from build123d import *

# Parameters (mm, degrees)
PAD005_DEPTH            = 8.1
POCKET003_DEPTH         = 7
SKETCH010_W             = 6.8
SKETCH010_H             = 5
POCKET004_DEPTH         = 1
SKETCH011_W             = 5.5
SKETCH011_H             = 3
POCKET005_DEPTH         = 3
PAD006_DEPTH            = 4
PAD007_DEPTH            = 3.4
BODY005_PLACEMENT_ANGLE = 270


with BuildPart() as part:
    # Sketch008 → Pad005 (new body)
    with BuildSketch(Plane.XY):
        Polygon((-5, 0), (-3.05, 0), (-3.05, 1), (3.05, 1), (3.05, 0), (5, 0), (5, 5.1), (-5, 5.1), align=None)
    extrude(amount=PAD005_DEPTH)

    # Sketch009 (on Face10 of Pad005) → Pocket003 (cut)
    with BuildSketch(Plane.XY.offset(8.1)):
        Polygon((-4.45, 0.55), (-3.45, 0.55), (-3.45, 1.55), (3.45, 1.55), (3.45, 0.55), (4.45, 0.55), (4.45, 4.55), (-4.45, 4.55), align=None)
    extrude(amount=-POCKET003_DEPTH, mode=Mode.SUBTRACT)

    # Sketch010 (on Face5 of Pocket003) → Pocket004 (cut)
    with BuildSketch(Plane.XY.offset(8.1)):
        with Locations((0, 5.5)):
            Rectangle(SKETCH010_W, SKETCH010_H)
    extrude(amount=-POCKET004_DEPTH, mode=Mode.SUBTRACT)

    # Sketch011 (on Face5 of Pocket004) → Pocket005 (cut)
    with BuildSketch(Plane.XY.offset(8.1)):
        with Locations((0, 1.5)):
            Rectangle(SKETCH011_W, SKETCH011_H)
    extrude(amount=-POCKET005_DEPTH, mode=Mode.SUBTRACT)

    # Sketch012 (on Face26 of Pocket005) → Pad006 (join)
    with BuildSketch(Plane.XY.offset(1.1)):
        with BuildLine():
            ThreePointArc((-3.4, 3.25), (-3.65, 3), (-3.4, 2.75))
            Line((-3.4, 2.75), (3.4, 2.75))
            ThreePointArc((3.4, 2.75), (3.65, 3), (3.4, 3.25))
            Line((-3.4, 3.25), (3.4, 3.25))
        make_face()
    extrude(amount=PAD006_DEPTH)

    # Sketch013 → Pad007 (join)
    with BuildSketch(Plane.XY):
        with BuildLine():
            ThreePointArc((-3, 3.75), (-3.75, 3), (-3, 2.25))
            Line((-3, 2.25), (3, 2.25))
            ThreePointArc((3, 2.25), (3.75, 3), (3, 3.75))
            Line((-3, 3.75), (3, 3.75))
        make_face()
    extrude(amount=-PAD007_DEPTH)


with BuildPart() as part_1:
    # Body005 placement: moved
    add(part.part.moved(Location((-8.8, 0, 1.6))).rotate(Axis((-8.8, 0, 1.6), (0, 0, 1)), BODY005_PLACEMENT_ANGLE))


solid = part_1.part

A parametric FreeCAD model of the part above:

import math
import FreeCAD as App
import Part
import Sketcher
Q = App.Units.Quantity

doc = App.newDocument("Part")
body = doc.addObject("PartDesign::Body", "Body")

# Sketch on XY plane
sketch1 = body.newObject("Sketcher::SketchObject", "Sketch")
sketch1.AttachmentSupport = (doc.getObject("XY_Plane"), [""])
sketch1.MapMode = "FlatFace"
sketch1.addGeometry(Part.LineSegment(App.Vector(-5, 0, 0), App.Vector(-3, 0, 0)), False)
sketch1.addGeometry(Part.LineSegment(App.Vector(-3, 0, 0), App.Vector(-3, 1, 0)), False)
sketch1.addGeometry(Part.LineSegment(App.Vector(-3, 1, 0), App.Vector(3, 1, 0)), False)
sketch1.addGeometry(Part.LineSegment(App.Vector(3, 1, 0), App.Vector(3, 0, 0)), False)
sketch1.addGeometry(Part.LineSegment(App.Vector(3, 0, 0), App.Vector(5, 0, 0)), False)
sketch1.addGeometry(Part.LineSegment(App.Vector(5, 0, 0), App.Vector(5, 5.1, 0)), False)
sketch1.addGeometry(Part.LineSegment(App.Vector(5, 5.1, 0), App.Vector(-5, 5.1, 0)), False)
sketch1.addGeometry(Part.LineSegment(App.Vector(-5, 5.1, 0), App.Vector(-5, 0, 0)), False)
sketch1.addConstraint(Sketcher.Constraint("Coincident", 0, 2, 1, 1))
sketch1.addConstraint(Sketcher.Constraint("Coincident", 1, 2, 2, 1))
sketch1.addConstraint(Sketcher.Constraint("Coincident", 2, 2, 3, 1))
sketch1.addConstraint(Sketcher.Constraint("Coincident", 3, 2, 4, 1))
sketch1.addConstraint(Sketcher.Constraint("Coincident", 4, 2, 5, 1))
sketch1.addConstraint(Sketcher.Constraint("Coincident", 5, 2, 6, 1))
sketch1.addConstraint(Sketcher.Constraint("Coincident", 6, 2, 7, 1))
sketch1.addConstraint(Sketcher.Constraint("Coincident", 7, 2, 0, 1))
sketch1.addConstraint(Sketcher.Constraint("Horizontal", 0))
sketch1.addConstraint(Sketcher.Constraint("Vertical", 1))
sketch1.addConstraint(Sketcher.Constraint("Horizontal", 2))
sketch1.addConstraint(Sketcher.Constraint("Vertical", 3))
sketch1.addConstraint(Sketcher.Constraint("Horizontal", 4))
sketch1.addConstraint(Sketcher.Constraint("Vertical", 5))
sketch1.addConstraint(Sketcher.Constraint("Horizontal", 6))
sketch1.addConstraint(Sketcher.Constraint("Vertical", 7))
sketch1.addConstraint(Sketcher.Constraint("Symmetric", 0, 2, 3, 2, -1, 1))
sketch1.addConstraint(Sketcher.Constraint("Symmetric", 4, 2, 7, 2, -2))
sketch1.addConstraint(Sketcher.Constraint("DistanceX", 6, 2, 6, 1, Q("10 mm")))
sketch1.addConstraint(Sketcher.Constraint("DistanceY", 1, 1, 1, 2, Q("1 mm")))
sketch1.addConstraint(Sketcher.Constraint("DistanceX", 2, 1, 2, 2, Q("6.1 mm")))
sketch1.addConstraint(Sketcher.Constraint("DistanceY", 5, 1, 5, 2, Q("5.1 mm")))
pad1 = body.newObject("PartDesign::Pad", "Pad")
pad1.Profile = sketch1
pad1.Length = 8.1

# Sketch on XY plane
sketch2 = body.newObject("Sketcher::SketchObject", "Sketch001")
sketch2.AttachmentSupport = (doc.getObject("XY_Plane"), [""])
sketch2.MapMode = "FlatFace"
sketch2.AttachmentOffset = App.Placement(App.Vector(0, 0, 8.1), App.Rotation())
sketch2.addGeometry(Part.LineSegment(App.Vector(-4.5, 0.6, 0), App.Vector(-3.5, 0.6, 0)), False)
sketch2.addGeometry(Part.LineSegment(App.Vector(-3.5, 0.6, 0), App.Vector(-3.5, 1.6, 0)), False)
sketch2.addGeometry(Part.LineSegment(App.Vector(-3.5, 1.6, 0), App.Vector(3.5, 1.6, 0)), False)
sketch2.addGeometry(Part.LineSegment(App.Vector(3.5, 1.6, 0), App.Vector(3.5, 0.6, 0)), False)
sketch2.addGeometry(Part.LineSegment(App.Vector(3.5, 0.6, 0), App.Vector(4.5, 0.6, 0)), False)
sketch2.addGeometry(Part.LineSegment(App.Vector(4.5, 0.6, 0), App.Vector(4.5, 4.5, 0)), False)
sketch2.addGeometry(Part.LineSegment(App.Vector(4.5, 4.5, 0), App.Vector(-4.5, 4.5, 0)), False)
sketch2.addGeometry(Part.LineSegment(App.Vector(-4.5, 4.5, 0), App.Vector(-4.5, 0.6, 0)), False)
sketch2.addConstraint(Sketcher.Constraint("Coincident", 0, 2, 1, 1))
sketch2.addConstraint(Sketcher.Constraint("Coincident", 1, 2, 2, 1))
sketch2.addConstraint(Sketcher.Constraint("Coincident", 2, 2, 3, 1))
sketch2.addConstraint(Sketcher.Constraint("Coincident", 3, 2, 4, 1))
sketch2.addConstraint(Sketcher.Constraint("Coincident", 4, 2, 5, 1))
sketch2.addConstraint(Sketcher.Constraint("Coincident", 5, 2, 6, 1))
sketch2.addConstraint(Sketcher.Constraint("Coincident", 6, 2, 7, 1))
sketch2.addConstraint(Sketcher.Constraint("Coincident", 7, 2, 0, 1))
sketch2.addConstraint(Sketcher.Constraint("Horizontal", 0))
sketch2.addConstraint(Sketcher.Constraint("Vertical", 1))
sketch2.addConstraint(Sketcher.Constraint("Horizontal", 2))
sketch2.addConstraint(Sketcher.Constraint("Vertical", 3))
sketch2.addConstraint(Sketcher.Constraint("Horizontal", 4))
sketch2.addConstraint(Sketcher.Constraint("Vertical", 5))
sketch2.addConstraint(Sketcher.Constraint("Horizontal", 6))
sketch2.addConstraint(Sketcher.Constraint("Vertical", 7))
sketch2.addConstraint(Sketcher.Constraint("Symmetric", 0, 2, 3, 2, -2))
sketch2.addConstraint(Sketcher.Constraint("Equal", 0, 4))
sketch2.addConstraint(Sketcher.Constraint("Equal", 4, 1))
sketch2.addConstraint(Sketcher.Constraint("DistanceX", 0, 1, 0, 2, Q("1 mm")))
sketch2.addConstraint(Sketcher.Constraint("DistanceY", 5, 1, 5, 2, Q("4 mm")))
sketch2.addConstraint(Sketcher.Constraint("DistanceX", 2, 1, 2, 2, Q("6.9 mm")))
sketch2.addConstraint(Sketcher.Constraint("DistanceY", -1, 1, 0, 2, Q("0.55 mm")))
pocket1 = body.newObject("PartDesign::Pocket", "Pocket")
pocket1.Profile = sketch2
pocket1.Length = 7

# Sketch on XY plane
sketch3 = body.newObject("Sketcher::SketchObject", "Sketch002")
sketch3.AttachmentSupport = (doc.getObject("XY_Plane"), [""])
sketch3.MapMode = "FlatFace"
sketch3.AttachmentOffset = App.Placement(App.Vector(0, 0, 8.1), App.Rotation())
sketch3.addGeometry(Part.LineSegment(App.Vector(-3, 8, 0), App.Vector(-3, 3, 0)), False)
sketch3.addGeometry(Part.LineSegment(App.Vector(-3, 3, 0), App.Vector(3, 3, 0)), False)
sketch3.addGeometry(Part.LineSegment(App.Vector(3, 3, 0), App.Vector(3, 8, 0)), False)
sketch3.addGeometry(Part.LineSegment(App.Vector(3, 8, 0), App.Vector(-3, 8, 0)), False)
sketch3.addConstraint(Sketcher.Constraint("Coincident", 0, 2, 1, 1))
sketch3.addConstraint(Sketcher.Constraint("Coincident", 1, 2, 2, 1))
sketch3.addConstraint(Sketcher.Constraint("Coincident", 2, 2, 3, 1))
sketch3.addConstraint(Sketcher.Constraint("Coincident", 3, 2, 0, 1))
sketch3.addConstraint(Sketcher.Constraint("Vertical", 0))
sketch3.addConstraint(Sketcher.Constraint("Horizontal", 1))
sketch3.addConstraint(Sketcher.Constraint("Vertical", 2))
sketch3.addConstraint(Sketcher.Constraint("Horizontal", 3))
sketch3.addConstraint(Sketcher.Constraint("DistanceY", 0, 2, 0, 1, Q("5 mm")))
sketch3.addConstraint(Sketcher.Constraint("DistanceX", 1, 1, 1, 2, Q("6.8 mm")))
sketch3.addConstraint(Sketcher.Constraint("DistanceY", -1, 1, 0, 2, Q("3 mm")))
sketch3.addConstraint(Sketcher.Constraint("DistanceX", 0, 2, -1, 1, Q("3.4 mm")))
pocket2 = body.newObject("PartDesign::Pocket", "Pocket001")
pocket2.Profile = sketch3
pocket2.Length = 1

# Sketch on XY plane
sketch4 = body.newObject("Sketcher::SketchObject", "Sketch003")
sketch4.AttachmentSupport = (doc.getObject("XY_Plane"), [""])
sketch4.MapMode = "FlatFace"
sketch4.AttachmentOffset = App.Placement(App.Vector(0, 0, 8.1), App.Rotation())
sketch4.addGeometry(Part.LineSegment(App.Vector(-2.8, 3, 0), App.Vector(-2.8, 0, 0)), False)
sketch4.addGeometry(Part.LineSegment(App.Vector(-2.8, 0, 0), App.Vector(2.8, 0, 0)), False)
sketch4.addGeometry(Part.LineSegment(App.Vector(2.8, 0, 0), App.Vector(2.8, 3, 0)), False)
sketch4.addGeometry(Part.LineSegment(App.Vector(2.8, 3, 0), App.Vector(-2.8, 3, 0)), False)
sketch4.addConstraint(Sketcher.Constraint("Coincident", 0, 2, 1, 1))
sketch4.addConstraint(Sketcher.Constraint("Coincident", 1, 2, 2, 1))
sketch4.addConstraint(Sketcher.Constraint("Coincident", 2, 2, 3, 1))
sketch4.addConstraint(Sketcher.Constraint("Coincident", 3, 2, 0, 1))
sketch4.addConstraint(Sketcher.Constraint("Vertical", 0))
sketch4.addConstraint(Sketcher.Constraint("Horizontal", 1))
sketch4.addConstraint(Sketcher.Constraint("Vertical", 2))
sketch4.addConstraint(Sketcher.Constraint("Horizontal", 3))
sketch4.addConstraint(Sketcher.Constraint("Symmetric", 0, 2, 1, 2, -1, 1))
sketch4.addConstraint(Sketcher.Constraint("DistanceY", 0, 2, 0, 1, Q("3 mm")))
sketch4.addConstraint(Sketcher.Constraint("DistanceX", 1, 1, 1, 2, Q("5.5 mm")))
pocket3 = body.newObject("PartDesign::Pocket", "Pocket002")
pocket3.Profile = sketch4
pocket3.Length = 3

# Sketch on XY plane
sketch5 = body.newObject("Sketcher::SketchObject", "Sketch004")
sketch5.AttachmentSupport = (doc.getObject("XY_Plane"), [""])
sketch5.MapMode = "FlatFace"
sketch5.AttachmentOffset = App.Placement(App.Vector(0, 0, 1.1), App.Rotation())
sketch5.addGeometry(Part.ArcOfCircle(Part.Circle(App.Vector(-3.4, 3, 0), App.Vector(0, 0, 1), 0.25), math.radians(90), math.radians(270)), False)
sketch5.addGeometry(Part.LineSegment(App.Vector(-3.4, 2.75, 0), App.Vector(3.4, 2.75, 0)), False)
sketch5.addGeometry(Part.ArcOfCircle(Part.Circle(App.Vector(3.4, 3, 0), App.Vector(0, 0, 1), 0.25), math.radians(-90), math.radians(90)), False)
sketch5.addGeometry(Part.LineSegment(App.Vector(3.4, 3.25, 0), App.Vector(-3.4, 3.25, 0)), False)
sketch5.addConstraint(Sketcher.Constraint("Tangent", 0, 2, 1, 1))
sketch5.addConstraint(Sketcher.Constraint("Tangent", 1, 2, 2, 1))
sketch5.addConstraint(Sketcher.Constraint("Tangent", 2, 2, 3, 1))
sketch5.addConstraint(Sketcher.Constraint("Tangent", 3, 2, 0, 1))
sketch5.addConstraint(Sketcher.Constraint("Horizontal", 1))
sketch5.addConstraint(Sketcher.Constraint("Horizontal", 3))
sketch5.addConstraint(Sketcher.Constraint("Radius", 0, Q("0.25 mm")))
sketch5.addConstraint(Sketcher.Constraint("DistanceX", 1, 1, 1, 2, Q("6.8 mm")))
sketch5.addConstraint(Sketcher.Constraint("DistanceY", -1, 1, 0, 3, Q("3 mm")))
sketch5.addConstraint(Sketcher.Constraint("DistanceX", 0, 3, -1, 1, Q("3.4 mm")))
pad2 = body.newObject("PartDesign::Pad", "Pad001")
pad2.Profile = sketch5
pad2.Length = 4

# Sketch on XY plane
sketch6 = body.newObject("Sketcher::SketchObject", "Sketch005")
sketch6.AttachmentSupport = (doc.getObject("XY_Plane"), [""])
sketch6.MapMode = "FlatFace"
sketch6.addGeometry(Part.ArcOfCircle(Part.Circle(App.Vector(-3, 3, 0), App.Vector(0, 0, 1), 0.8), math.radians(90), math.radians(270)), False)
sketch6.addGeometry(Part.LineSegment(App.Vector(-3, 2.2, 0), App.Vector(3, 2.2, 0)), False)
sketch6.addGeometry(Part.ArcOfCircle(Part.Circle(App.Vector(3, 3, 0), App.Vector(0, 0, 1), 0.8), math.radians(-90), math.radians(90)), False)
sketch6.addGeometry(Part.LineSegment(App.Vector(3, 3.8, 0), App.Vector(-3, 3.8, 0)), False)
sketch6.addConstraint(Sketcher.Constraint("Tangent", 0, 2, 1, 1))
sketch6.addConstraint(Sketcher.Constraint("Tangent", 1, 2, 2, 1))
sketch6.addConstraint(Sketcher.Constraint("Tangent", 2, 2, 3, 1))
sketch6.addConstraint(Sketcher.Constraint("Tangent", 3, 2, 0, 1))
sketch6.addConstraint(Sketcher.Constraint("Horizontal", 1))
sketch6.addConstraint(Sketcher.Constraint("Horizontal", 3))
sketch6.addConstraint(Sketcher.Constraint("DistanceX", 1, 1, 1, 2, Q("6 mm")))
sketch6.addConstraint(Sketcher.Constraint("Radius", 0, Q("0.75 mm")))
sketch6.addConstraint(Sketcher.Constraint("DistanceX", 0, 3, -1, 1, Q("3 mm")))
sketch6.addConstraint(Sketcher.Constraint("DistanceY", -1, 1, 0, 3, Q("3 mm")))
pad3 = body.newObject("PartDesign::Pad", "Pad002")
pad3.Profile = sketch6
pad3.Length = 3.4
pad3.Reversed = True
body2 = doc.addObject("PartDesign::Body", "Body001")
doc.recompute()

body.Placement = App.Placement(App.Vector(-8.8, 0, 1.6), App.Rotation(App.Vector(0, 0, 1), 270))
boolean = body2.newObject("PartDesign::Boolean", "Boolean")
boolean.Type = "Fuse"
boolean.addObjects([body])

doc.recompute()
